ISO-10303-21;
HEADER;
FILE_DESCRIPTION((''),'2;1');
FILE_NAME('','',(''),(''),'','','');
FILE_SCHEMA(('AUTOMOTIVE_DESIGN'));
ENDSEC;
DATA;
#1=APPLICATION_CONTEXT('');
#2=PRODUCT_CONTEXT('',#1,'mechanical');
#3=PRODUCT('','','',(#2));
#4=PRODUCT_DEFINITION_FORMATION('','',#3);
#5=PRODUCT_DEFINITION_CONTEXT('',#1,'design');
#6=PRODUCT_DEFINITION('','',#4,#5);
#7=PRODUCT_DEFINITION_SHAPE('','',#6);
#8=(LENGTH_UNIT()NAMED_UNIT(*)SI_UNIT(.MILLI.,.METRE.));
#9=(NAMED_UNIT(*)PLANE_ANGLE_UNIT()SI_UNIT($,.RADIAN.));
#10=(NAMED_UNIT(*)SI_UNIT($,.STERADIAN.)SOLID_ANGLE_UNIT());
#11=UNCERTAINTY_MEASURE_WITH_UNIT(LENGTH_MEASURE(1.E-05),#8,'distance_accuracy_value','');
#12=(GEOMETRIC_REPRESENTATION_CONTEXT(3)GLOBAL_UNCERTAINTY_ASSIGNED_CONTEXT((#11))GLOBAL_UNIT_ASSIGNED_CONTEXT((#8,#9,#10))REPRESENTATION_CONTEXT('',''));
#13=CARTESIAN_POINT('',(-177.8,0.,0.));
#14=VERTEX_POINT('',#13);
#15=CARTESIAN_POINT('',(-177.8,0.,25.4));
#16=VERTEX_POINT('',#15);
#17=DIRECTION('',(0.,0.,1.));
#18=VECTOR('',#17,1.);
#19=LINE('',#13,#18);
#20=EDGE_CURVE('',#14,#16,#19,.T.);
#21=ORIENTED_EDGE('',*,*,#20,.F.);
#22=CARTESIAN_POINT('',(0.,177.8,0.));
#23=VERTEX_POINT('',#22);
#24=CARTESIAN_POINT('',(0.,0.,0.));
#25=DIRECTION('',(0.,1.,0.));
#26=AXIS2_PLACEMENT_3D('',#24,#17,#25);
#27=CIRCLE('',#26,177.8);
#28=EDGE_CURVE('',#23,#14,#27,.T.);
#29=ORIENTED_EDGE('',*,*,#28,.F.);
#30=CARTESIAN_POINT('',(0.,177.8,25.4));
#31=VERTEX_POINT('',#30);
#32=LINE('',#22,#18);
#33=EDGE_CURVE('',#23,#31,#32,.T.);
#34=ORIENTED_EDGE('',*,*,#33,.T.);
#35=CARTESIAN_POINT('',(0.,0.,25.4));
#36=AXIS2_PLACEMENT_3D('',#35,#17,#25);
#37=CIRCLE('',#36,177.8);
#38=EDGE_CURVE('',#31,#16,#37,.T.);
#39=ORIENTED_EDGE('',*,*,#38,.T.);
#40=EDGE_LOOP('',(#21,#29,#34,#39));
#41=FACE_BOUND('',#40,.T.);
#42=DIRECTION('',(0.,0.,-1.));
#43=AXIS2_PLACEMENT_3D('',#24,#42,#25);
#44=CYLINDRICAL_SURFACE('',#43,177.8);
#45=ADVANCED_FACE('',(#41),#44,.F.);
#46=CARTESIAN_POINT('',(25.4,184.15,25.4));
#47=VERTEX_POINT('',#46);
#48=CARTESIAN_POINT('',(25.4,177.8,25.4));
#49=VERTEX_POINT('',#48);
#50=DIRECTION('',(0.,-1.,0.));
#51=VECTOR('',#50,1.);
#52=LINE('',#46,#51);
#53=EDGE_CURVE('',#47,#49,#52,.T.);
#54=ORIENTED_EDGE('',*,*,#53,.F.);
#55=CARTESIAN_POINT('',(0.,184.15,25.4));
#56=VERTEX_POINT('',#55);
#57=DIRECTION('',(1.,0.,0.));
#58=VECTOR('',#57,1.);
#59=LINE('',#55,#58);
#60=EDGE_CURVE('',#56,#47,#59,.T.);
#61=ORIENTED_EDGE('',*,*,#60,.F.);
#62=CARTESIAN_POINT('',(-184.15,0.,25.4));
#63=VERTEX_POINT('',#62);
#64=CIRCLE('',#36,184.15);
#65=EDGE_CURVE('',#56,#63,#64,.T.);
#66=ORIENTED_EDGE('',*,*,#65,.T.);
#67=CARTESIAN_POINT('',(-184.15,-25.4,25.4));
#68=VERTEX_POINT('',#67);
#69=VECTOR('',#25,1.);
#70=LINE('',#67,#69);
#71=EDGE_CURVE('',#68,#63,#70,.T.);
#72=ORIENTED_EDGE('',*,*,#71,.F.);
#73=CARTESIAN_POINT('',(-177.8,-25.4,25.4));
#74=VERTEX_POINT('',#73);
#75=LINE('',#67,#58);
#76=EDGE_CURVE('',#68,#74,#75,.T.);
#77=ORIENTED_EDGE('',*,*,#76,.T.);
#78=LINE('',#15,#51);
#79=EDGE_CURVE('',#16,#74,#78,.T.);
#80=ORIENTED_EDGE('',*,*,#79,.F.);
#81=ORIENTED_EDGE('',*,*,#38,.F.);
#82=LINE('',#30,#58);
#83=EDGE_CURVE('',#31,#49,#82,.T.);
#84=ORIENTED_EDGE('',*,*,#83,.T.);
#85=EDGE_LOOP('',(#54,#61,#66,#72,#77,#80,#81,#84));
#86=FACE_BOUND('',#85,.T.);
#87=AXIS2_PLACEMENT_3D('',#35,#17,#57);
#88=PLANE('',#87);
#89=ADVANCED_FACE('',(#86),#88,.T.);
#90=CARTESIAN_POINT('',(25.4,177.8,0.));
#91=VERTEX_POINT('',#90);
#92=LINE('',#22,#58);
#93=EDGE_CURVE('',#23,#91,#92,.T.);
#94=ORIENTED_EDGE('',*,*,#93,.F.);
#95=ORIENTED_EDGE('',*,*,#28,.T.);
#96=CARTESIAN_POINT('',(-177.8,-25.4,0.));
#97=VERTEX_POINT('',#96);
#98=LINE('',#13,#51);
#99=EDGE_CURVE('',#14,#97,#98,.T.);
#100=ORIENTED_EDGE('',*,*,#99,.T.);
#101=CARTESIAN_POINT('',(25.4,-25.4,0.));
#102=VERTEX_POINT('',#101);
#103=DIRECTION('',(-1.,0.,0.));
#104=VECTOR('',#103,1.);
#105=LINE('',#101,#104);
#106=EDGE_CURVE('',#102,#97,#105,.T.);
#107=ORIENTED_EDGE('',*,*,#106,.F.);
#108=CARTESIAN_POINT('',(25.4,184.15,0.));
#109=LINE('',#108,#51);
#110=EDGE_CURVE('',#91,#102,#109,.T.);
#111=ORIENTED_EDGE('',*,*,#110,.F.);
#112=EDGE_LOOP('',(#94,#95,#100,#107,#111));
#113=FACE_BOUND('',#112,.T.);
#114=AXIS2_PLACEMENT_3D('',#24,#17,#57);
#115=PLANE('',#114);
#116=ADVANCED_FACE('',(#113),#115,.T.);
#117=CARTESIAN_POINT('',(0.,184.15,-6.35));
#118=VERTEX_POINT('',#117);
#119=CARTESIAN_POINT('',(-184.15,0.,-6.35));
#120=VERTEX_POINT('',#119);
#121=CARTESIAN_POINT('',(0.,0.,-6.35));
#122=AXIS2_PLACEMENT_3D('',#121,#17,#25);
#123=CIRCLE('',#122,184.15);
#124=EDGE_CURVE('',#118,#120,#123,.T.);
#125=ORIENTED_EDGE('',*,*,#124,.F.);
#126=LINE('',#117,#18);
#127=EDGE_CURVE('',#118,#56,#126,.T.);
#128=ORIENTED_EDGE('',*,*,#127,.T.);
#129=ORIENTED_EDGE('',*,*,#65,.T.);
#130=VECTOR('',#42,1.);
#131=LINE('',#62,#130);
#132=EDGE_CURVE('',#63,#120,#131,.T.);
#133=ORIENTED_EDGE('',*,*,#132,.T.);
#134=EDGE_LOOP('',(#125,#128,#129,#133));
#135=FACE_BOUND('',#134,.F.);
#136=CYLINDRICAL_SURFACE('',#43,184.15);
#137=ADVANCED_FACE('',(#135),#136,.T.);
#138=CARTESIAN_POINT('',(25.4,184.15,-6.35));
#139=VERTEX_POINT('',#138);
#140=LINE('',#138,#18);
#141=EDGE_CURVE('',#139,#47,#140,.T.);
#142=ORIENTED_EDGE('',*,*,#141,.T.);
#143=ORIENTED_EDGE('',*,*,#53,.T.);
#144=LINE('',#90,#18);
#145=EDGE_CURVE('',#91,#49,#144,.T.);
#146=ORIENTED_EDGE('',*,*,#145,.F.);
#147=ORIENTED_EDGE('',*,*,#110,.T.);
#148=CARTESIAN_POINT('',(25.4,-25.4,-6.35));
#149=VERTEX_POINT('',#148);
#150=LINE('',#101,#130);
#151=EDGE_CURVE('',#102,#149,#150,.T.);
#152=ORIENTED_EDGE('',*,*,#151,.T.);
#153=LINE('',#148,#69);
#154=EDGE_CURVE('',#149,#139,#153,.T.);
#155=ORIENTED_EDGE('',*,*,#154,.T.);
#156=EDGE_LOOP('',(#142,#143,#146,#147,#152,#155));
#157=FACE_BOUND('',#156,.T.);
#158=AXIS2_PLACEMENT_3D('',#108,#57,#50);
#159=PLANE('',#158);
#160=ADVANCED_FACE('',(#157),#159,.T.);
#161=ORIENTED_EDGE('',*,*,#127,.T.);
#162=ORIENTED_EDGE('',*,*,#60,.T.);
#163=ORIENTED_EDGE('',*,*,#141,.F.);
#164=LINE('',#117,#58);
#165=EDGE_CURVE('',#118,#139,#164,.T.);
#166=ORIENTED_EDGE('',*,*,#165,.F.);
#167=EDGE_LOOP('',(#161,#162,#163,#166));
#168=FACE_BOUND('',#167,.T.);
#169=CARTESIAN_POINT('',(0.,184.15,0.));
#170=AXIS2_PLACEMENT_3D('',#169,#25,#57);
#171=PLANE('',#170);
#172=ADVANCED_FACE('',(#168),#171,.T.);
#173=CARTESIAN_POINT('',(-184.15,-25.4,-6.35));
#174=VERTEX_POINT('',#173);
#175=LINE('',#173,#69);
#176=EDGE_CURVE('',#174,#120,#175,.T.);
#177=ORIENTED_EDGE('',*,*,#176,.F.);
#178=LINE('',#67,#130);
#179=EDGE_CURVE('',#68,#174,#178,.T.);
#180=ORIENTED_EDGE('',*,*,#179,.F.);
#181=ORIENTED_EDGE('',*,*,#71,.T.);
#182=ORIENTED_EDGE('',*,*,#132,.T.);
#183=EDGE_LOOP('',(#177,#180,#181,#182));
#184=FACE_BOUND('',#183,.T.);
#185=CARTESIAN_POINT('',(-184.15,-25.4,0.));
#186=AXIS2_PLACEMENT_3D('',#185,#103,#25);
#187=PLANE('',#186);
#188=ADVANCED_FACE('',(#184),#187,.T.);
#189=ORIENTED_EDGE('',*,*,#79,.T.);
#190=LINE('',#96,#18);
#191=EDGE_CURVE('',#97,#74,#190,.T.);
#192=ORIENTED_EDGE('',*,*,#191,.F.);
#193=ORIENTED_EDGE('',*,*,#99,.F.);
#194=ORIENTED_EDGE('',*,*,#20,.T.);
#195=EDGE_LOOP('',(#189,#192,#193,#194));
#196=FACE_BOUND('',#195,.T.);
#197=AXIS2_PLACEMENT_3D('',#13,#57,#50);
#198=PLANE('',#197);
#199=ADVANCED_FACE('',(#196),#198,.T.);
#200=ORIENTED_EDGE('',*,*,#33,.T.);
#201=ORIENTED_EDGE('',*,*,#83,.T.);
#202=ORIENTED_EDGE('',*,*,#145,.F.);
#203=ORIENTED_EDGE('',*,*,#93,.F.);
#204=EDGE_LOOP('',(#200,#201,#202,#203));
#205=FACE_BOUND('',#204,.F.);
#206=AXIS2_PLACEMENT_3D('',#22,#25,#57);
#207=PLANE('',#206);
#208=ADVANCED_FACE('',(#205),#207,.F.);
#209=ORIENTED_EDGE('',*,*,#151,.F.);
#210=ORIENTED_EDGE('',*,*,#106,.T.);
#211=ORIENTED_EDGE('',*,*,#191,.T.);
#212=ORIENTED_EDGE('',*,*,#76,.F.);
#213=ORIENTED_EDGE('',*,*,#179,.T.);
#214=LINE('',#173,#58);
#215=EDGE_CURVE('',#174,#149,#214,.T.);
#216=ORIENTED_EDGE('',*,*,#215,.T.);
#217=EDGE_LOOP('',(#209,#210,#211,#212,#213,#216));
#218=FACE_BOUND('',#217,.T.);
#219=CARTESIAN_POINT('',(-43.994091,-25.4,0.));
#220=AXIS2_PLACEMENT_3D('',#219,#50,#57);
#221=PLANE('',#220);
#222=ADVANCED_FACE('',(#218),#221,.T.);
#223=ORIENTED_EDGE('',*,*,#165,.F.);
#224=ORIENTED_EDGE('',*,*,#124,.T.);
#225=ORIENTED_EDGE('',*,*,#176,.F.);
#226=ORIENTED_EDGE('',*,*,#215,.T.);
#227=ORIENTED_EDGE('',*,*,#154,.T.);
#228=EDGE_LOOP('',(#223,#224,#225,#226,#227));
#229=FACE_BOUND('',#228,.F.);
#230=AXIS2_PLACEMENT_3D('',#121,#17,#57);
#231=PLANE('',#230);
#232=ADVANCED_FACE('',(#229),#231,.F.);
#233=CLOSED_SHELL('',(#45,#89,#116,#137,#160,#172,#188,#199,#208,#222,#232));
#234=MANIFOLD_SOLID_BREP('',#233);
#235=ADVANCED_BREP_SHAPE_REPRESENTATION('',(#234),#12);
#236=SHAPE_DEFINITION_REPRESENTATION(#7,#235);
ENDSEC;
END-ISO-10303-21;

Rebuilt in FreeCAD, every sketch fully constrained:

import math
import FreeCAD as App
import Part
import Sketcher

V = App.Vector
Q = App.Units.Quantity

doc = App.newDocument("Part")
body = doc.addObject("PartDesign::Body", "Body")

# Sketch on XY plane
sketch1 = body.newObject("Sketcher::SketchObject", "Sketch")
sketch1.AttachmentSupport = (doc.getObject("XY_Plane"), [""])
sketch1.MapMode = "FlatFace"
sketch1.addGeometry(Part.LineSegment(V(0, 177.8, 0), V(25.4, 177.8, 0)), False)
sketch1.addGeometry(Part.LineSegment(V(25.4, 177.8, 0), V(25.4, 184.15, 0)), False)
sketch1.addGeometry(Part.LineSegment(V(25.4, 184.15, 0), V(0, 184.15, 0)), False)
sketch1.addGeometry(Part.ArcOfCircle(Part.Circle(V(0, 0, 0), V(0, 0, 1), 184.15), math.radians(90), math.radians(180)), False)
sketch1.addGeometry(Part.LineSegment(V(-184.15, 0, 0), V(-184.15, -25.4, 0)), False)
sketch1.addGeometry(Part.LineSegment(V(-184.15, -25.4, 0), V(-177.8, -25.4, 0)), False)
sketch1.addGeometry(Part.LineSegment(V(-177.8, -25.4, 0), V(-177.8, 0, 0)), False)
sketch1.addGeometry(Part.ArcOfCircle(Part.Circle(V(0, 0, 0), V(0, 0, 1), 177.8), math.radians(90), math.radians(180)), False)
sketch1.addConstraint(Sketcher.Constraint("Coincident", 0, 2, 1, 1))
sketch1.addConstraint(Sketcher.Constraint("Coincident", 1, 2, 2, 1))
sketch1.addConstraint(Sketcher.Constraint("Tangent", 2, 2, 3, 1))
sketch1.addConstraint(Sketcher.Constraint("Tangent", 3, 2, 4, 1))
sketch1.addConstraint(Sketcher.Constraint("Coincident", 4, 2, 5, 1))
sketch1.addConstraint(Sketcher.Constraint("Coincident", 5, 2, 6, 1))
sketch1.addConstraint(Sketcher.Constraint("Tangent", 6, 2, 7, 2))
sketch1.addConstraint(Sketcher.Constraint("Tangent", 7, 1, 0, 1))
sketch1.addConstraint(Sketcher.Constraint("Horizontal", 0))
sketch1.addConstraint(Sketcher.Constraint("Vertical", 1))
sketch1.addConstraint(Sketcher.Constraint("Horizontal", 2))
sketch1.addConstraint(Sketcher.Constraint("Vertical", 4))
sketch1.addConstraint(Sketcher.Constraint("Horizontal", 5))
sketch1.addConstraint(Sketcher.Constraint("Vertical", 6))
sketch1.addConstraint(Sketcher.Constraint("Coincident", 3, 3, -1, 1))
sketch1.addConstraint(Sketcher.Constraint("Coincident", 7, 3, -1, 1))
sketch1.addConstraint(Sketcher.Constraint("Equal", 2, 4))
sketch1.addConstraint(Sketcher.Constraint("DistanceX", 0, 1, 0, 2, Q("1 in")))
sketch1.addConstraint(Sketcher.Constraint("Radius", 7, Q("7 in")))
sketch1.addConstraint(Sketcher.Constraint("DistanceX", 5, 1, 5, 2, Q("0.25 in")))
pad1 = body.newObject("PartDesign::Pad", "Pad")
pad1.Profile = sketch1
pad1.Length = Q("1 in")

# Sketch on XY plane
sketch2 = body.newObject("Sketcher::SketchObject", "Sketch001")
sketch2.AttachmentSupport = (doc.getObject("XY_Plane"), [""])
sketch2.MapMode = "FlatFace"
sketch2.addGeometry(Part.LineSegment(V(25.4, -25.4, 0), V(25.4, 184.15, 0)), False)
sketch2.addGeometry(Part.LineSegment(V(25.4, 184.15, 0), V(0, 184.15, 0)), False)
sketch2.addGeometry(Part.ArcOfCircle(Part.Circle(V(0, 0, 0), V(0, 0, 1), 184.15), math.radians(90), math.radians(180)), False)
sketch2.addGeometry(Part.LineSegment(V(-184.15, 0, 0), V(-184.15, -25.4, 0)), False)
sketch2.addGeometry(Part.LineSegment(V(-184.15, -25.4, 0), V(25.4, -25.4, 0)), False)
sketch2.addConstraint(Sketcher.Constraint("Coincident", 0, 2, 1, 1))
sketch2.addConstraint(Sketcher.Constraint("Tangent", 1, 2, 2, 1))
sketch2.addConstraint(Sketcher.Constraint("Tangent", 2, 2, 3, 1))
sketch2.addConstraint(Sketcher.Constraint("Coincident", 3, 2, 4, 1))
sketch2.addConstraint(Sketcher.Constraint("Coincident", 4, 2, 0, 1))
sketch2.addConstraint(Sketcher.Constraint("Vertical", 0))
sketch2.addConstraint(Sketcher.Constraint("Horizontal", 1))
sketch2.addConstraint(Sketcher.Constraint("Vertical", 3))
sketch2.addConstraint(Sketcher.Constraint("Horizontal", 4))
sketch2.addConstraint(Sketcher.Constraint("Coincident", 2, 3, -1, 1))
sketch2.addConstraint(Sketcher.Constraint("Equal", 4, 0))
sketch2.addConstraint(Sketcher.Constraint("DistanceX", 1, 2, 1, 1, Q("1 in")))
sketch2.addConstraint(Sketcher.Constraint("Radius", 2, Q("7.25 in")))
pad2 = body.newObject("PartDesign::Pad", "Pad001")
pad2.Profile = sketch2
pad2.Length = Q("0.25 in")
pad2.Reversed = True

doc.recompute()
